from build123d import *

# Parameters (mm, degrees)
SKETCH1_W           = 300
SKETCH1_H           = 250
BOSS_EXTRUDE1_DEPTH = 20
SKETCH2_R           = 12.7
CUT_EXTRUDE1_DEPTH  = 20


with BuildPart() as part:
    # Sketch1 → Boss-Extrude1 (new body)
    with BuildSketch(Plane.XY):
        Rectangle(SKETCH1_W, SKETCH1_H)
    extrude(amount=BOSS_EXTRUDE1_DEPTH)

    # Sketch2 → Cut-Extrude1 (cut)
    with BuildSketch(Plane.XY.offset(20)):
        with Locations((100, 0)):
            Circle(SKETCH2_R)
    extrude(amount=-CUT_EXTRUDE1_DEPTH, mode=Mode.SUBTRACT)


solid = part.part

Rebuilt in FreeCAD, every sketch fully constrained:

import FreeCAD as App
import Part
import Sketcher
Q = App.Units.Quantity

doc = App.newDocument("Part")
params = doc.addObject("Spreadsheet::Sheet", "Params")
for row, (alias, value) in enumerate([
    ("sketch1_width", "300 mm"),
    ("sketch1_height", "250 mm"),
    ("pad1_length", "20 mm"),
    ("sketch2_diameter", "25.4 mm"),
    ("pocket1_length", "20 mm"),
], start=1):
    params.set(f"A{row}", alias)
    params.set(f"B{row}", "=" + value)
    params.setAlias(f"B{row}", alias)

body = doc.addObject("PartDesign::Body", "Body")

sketch1 = body.newObject("Sketcher::SketchObject", "Sketch")
sketch1.AttachmentSupport = (doc.getObject("XY_Plane"), [""])
sketch1.MapMode = "FlatFace"
sketch1.addGeometry(Part.LineSegment(App.Vector(-150, 125, 0), App.Vector(-150, -125, 0)), False)
sketch1.addGeometry(Part.LineSegment(App.Vector(-150, -125, 0), App.Vector(150, -125, 0)), False)
sketch1.addGeometry(Part.LineSegment(App.Vector(150, -125, 0), App.Vector(150, 125, 0)), False)
sketch1.addGeometry(Part.LineSegment(App.Vector(150, 125, 0), App.Vector(-150, 125, 0)), False)
sketch1.addConstraint(Sketcher.Constraint("Coincident", 0, 2, 1, 1))
sketch1.addConstraint(Sketcher.Constraint("Coincident", 1, 2, 2, 1))
sketch1.addConstraint(Sketcher.Constraint("Coincident", 2, 2, 3, 1))
sketch1.addConstraint(Sketcher.Constraint("Coincident", 3, 2, 0, 1))
sketch1.addConstraint(Sketcher.Constraint("Vertical", 0))
sketch1.addConstraint(Sketcher.Constraint("Horizontal", 1))
sketch1.addConstraint(Sketcher.Constraint("Vertical", 2))
sketch1.addConstraint(Sketcher.Constraint("Horizontal", 3))
sketch1.addConstraint(Sketcher.Constraint("Symmetric", 0, 2, 2, 2, -1, 1))
sketch1.addConstraint(Sketcher.Constraint("DistanceX", 1, 1, 1, 2, Q("300 mm")))
sketch1.addConstraint(Sketcher.Constraint("DistanceY", 0, 2, 0, 1, Q("250 mm")))
sketch1.setExpression("Constraints[9]", "Params.sketch1_width")
sketch1.setExpression("Constraints[10]", "Params.sketch1_height")
pad1 = body.newObject("PartDesign::Pad", "Pad")
pad1.Profile = sketch1
pad1.setExpression("Length", "Params.pad1_length")

sketch2 = body.newObject("Sketcher::SketchObject", "Sketch001")
sketch2.AttachmentSupport = (doc.getObject("XY_Plane"), [""])
sketch2.MapMode = "FlatFace"
sketch2.AttachmentOffset = App.Placement(App.Vector(0, 0, 20), App.Rotation())
sketch2.addGeometry(Part.Circle(App.Vector(100, 0, 0), App.Vector(0, 0, 1), 13), False)
sketch2.addConstraint(Sketcher.Constraint("PointOnObject", 0, 3, -1))
sketch2.addConstraint(Sketcher.Constraint("Diameter", 0, Q("25.4 mm")))
sketch2.addConstraint(Sketcher.Constraint("DistanceX", -1, 1, 0, 3, Q("100 mm")))
sketch2.setExpression("Constraints[1]", "Params.sketch2_diameter")
pocket1 = body.newObject("PartDesign::Pocket", "Pocket")
pocket1.Profile = sketch2
pocket1.setExpression("Length", "Params.pocket1_length")

doc.recompute()
